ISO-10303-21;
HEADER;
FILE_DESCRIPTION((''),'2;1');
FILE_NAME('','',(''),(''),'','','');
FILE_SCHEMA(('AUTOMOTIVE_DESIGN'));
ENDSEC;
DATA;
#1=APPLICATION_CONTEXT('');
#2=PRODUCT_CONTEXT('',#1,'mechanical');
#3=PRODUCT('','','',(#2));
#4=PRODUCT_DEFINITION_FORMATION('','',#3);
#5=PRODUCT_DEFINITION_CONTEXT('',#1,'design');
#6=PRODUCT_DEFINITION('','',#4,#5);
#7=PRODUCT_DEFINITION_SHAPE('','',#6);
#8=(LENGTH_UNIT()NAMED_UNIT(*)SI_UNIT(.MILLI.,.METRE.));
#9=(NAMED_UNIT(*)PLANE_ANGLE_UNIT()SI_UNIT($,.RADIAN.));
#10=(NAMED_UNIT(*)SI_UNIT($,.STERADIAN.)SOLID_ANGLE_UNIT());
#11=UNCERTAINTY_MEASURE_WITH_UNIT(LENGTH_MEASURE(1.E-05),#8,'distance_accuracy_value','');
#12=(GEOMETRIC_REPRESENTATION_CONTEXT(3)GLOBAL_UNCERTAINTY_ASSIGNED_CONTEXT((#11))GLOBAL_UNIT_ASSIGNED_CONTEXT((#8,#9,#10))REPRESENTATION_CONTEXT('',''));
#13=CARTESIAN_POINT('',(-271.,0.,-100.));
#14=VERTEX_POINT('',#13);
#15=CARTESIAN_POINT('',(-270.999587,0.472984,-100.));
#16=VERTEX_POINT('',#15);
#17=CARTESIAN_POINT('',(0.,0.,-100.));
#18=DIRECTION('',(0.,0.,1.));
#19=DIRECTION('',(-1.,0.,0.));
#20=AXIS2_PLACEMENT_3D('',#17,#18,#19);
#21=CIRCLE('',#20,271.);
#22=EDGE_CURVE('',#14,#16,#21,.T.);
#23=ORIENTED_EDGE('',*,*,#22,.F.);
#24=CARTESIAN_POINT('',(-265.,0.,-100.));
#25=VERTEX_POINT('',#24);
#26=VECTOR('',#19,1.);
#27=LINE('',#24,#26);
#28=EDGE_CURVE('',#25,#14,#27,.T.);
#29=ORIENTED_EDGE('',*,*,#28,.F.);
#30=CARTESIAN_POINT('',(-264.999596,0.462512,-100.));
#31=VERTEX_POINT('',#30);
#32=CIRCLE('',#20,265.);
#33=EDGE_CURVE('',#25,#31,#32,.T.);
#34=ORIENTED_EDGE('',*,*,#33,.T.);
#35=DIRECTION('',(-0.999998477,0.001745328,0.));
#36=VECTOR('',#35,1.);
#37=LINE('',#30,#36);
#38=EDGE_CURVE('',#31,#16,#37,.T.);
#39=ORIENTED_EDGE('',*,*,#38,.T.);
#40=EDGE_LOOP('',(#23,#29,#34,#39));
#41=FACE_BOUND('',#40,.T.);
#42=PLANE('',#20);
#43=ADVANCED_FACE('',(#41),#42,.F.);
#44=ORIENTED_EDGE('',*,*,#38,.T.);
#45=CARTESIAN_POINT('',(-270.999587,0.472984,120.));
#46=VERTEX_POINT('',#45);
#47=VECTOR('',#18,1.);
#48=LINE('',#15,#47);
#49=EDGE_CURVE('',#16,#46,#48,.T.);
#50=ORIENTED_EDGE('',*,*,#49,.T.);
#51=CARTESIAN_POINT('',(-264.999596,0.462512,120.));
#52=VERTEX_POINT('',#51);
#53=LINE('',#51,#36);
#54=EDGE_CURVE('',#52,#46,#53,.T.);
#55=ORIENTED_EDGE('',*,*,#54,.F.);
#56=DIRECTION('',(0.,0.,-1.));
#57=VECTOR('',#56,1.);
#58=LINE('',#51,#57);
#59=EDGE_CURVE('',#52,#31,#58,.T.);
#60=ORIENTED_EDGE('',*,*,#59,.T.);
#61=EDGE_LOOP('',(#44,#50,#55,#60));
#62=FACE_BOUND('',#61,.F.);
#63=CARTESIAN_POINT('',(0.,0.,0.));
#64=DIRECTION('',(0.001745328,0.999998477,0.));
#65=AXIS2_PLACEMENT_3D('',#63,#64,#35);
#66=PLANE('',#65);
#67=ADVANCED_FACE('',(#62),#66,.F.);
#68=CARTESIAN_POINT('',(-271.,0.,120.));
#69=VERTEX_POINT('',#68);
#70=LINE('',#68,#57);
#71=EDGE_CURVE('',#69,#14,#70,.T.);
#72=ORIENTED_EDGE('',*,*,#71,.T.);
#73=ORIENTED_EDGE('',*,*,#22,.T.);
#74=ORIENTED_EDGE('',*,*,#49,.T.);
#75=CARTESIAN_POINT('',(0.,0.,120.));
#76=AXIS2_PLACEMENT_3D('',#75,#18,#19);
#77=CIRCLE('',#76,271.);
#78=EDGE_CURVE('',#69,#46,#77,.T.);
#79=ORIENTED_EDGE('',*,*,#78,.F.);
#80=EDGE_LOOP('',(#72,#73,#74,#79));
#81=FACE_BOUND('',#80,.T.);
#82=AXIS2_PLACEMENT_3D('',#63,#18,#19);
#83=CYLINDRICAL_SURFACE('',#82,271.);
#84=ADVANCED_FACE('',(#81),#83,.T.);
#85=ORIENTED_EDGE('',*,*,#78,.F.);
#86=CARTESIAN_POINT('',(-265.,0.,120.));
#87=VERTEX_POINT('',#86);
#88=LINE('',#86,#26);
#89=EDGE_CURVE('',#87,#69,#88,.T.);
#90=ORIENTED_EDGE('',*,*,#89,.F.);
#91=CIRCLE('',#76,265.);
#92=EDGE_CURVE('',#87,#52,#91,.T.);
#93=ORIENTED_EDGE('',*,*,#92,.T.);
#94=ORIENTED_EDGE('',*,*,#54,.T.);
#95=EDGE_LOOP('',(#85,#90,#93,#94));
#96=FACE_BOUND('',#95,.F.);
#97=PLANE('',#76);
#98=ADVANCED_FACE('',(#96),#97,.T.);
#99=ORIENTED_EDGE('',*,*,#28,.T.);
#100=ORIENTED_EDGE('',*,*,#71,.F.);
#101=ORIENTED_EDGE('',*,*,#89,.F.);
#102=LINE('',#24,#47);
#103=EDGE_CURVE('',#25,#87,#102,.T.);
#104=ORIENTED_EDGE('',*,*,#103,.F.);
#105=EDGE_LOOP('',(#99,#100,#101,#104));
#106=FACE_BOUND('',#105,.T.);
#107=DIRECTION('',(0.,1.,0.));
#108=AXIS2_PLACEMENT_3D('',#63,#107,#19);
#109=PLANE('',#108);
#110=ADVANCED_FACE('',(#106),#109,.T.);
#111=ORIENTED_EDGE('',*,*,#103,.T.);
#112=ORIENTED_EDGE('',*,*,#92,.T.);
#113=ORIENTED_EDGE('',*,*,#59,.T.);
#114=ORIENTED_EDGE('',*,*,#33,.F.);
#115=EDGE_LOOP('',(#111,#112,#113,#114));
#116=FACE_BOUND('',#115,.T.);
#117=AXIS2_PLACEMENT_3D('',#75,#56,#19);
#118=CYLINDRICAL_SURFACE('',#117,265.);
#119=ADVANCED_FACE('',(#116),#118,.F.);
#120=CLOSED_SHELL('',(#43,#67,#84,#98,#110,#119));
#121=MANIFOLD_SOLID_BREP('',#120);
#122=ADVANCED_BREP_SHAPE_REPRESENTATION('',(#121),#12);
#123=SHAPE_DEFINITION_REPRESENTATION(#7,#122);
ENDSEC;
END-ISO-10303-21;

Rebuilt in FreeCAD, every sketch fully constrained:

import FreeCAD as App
import Part
import Sketcher

V = App.Vector
Q = App.Units.Quantity


def add_polygon(sketch, points):
    """Adds a closed chain of lines whose ends are joined by coincident constraints."""
    first, n = sketch.GeometryCount, len(points)
    for a, b in zip(points, points[1:] + points[:1]):
        sketch.addGeometry(Part.LineSegment(App.Vector(*a, 0), App.Vector(*b, 0)), False)
    for i in range(n):
        sketch.addConstraint(Sketcher.Constraint("Coincident", first + i, 2, first + (i + 1) % n, 1))

doc = App.newDocument("Part")
body = doc.addObject("PartDesign::Body", "Body")

sketch1 = body.newObject("Sketcher::SketchObject", "Sketch")
sketch1.AttachmentSupport = (doc.getObject("XZ_Plane"), [""])
sketch1.MapMode = "FlatFace"
add_polygon(sketch1, [(-271, 120), (-265, 120), (-265, -100), (-271, -100)])
sketch1.addConstraint([
    Sketcher.Constraint("Horizontal", 0),
    Sketcher.Constraint("Vertical", 1),
    Sketcher.Constraint("Horizontal", 2),
    Sketcher.Constraint("Vertical", 3),
    Sketcher.Constraint("DistanceX", 0, 1, 0, 2, Q("6 mm")),
    Sketcher.Constraint("DistanceY", -1, 1, 0, 2, Q("120 mm")),
    Sketcher.Constraint("DistanceY", 1, 2, -1, 1, Q("100 mm")),
    Sketcher.Constraint("DistanceX", 0, 2, -1, 1, Q("265 mm")),
])
revolution = body.newObject("PartDesign::Revolution", "Revolution")
revolution.Profile = sketch1
revolution.ReferenceAxis = (sketch1, ["V_Axis"])
revolution.Angle = 359.9

doc.recompute()
